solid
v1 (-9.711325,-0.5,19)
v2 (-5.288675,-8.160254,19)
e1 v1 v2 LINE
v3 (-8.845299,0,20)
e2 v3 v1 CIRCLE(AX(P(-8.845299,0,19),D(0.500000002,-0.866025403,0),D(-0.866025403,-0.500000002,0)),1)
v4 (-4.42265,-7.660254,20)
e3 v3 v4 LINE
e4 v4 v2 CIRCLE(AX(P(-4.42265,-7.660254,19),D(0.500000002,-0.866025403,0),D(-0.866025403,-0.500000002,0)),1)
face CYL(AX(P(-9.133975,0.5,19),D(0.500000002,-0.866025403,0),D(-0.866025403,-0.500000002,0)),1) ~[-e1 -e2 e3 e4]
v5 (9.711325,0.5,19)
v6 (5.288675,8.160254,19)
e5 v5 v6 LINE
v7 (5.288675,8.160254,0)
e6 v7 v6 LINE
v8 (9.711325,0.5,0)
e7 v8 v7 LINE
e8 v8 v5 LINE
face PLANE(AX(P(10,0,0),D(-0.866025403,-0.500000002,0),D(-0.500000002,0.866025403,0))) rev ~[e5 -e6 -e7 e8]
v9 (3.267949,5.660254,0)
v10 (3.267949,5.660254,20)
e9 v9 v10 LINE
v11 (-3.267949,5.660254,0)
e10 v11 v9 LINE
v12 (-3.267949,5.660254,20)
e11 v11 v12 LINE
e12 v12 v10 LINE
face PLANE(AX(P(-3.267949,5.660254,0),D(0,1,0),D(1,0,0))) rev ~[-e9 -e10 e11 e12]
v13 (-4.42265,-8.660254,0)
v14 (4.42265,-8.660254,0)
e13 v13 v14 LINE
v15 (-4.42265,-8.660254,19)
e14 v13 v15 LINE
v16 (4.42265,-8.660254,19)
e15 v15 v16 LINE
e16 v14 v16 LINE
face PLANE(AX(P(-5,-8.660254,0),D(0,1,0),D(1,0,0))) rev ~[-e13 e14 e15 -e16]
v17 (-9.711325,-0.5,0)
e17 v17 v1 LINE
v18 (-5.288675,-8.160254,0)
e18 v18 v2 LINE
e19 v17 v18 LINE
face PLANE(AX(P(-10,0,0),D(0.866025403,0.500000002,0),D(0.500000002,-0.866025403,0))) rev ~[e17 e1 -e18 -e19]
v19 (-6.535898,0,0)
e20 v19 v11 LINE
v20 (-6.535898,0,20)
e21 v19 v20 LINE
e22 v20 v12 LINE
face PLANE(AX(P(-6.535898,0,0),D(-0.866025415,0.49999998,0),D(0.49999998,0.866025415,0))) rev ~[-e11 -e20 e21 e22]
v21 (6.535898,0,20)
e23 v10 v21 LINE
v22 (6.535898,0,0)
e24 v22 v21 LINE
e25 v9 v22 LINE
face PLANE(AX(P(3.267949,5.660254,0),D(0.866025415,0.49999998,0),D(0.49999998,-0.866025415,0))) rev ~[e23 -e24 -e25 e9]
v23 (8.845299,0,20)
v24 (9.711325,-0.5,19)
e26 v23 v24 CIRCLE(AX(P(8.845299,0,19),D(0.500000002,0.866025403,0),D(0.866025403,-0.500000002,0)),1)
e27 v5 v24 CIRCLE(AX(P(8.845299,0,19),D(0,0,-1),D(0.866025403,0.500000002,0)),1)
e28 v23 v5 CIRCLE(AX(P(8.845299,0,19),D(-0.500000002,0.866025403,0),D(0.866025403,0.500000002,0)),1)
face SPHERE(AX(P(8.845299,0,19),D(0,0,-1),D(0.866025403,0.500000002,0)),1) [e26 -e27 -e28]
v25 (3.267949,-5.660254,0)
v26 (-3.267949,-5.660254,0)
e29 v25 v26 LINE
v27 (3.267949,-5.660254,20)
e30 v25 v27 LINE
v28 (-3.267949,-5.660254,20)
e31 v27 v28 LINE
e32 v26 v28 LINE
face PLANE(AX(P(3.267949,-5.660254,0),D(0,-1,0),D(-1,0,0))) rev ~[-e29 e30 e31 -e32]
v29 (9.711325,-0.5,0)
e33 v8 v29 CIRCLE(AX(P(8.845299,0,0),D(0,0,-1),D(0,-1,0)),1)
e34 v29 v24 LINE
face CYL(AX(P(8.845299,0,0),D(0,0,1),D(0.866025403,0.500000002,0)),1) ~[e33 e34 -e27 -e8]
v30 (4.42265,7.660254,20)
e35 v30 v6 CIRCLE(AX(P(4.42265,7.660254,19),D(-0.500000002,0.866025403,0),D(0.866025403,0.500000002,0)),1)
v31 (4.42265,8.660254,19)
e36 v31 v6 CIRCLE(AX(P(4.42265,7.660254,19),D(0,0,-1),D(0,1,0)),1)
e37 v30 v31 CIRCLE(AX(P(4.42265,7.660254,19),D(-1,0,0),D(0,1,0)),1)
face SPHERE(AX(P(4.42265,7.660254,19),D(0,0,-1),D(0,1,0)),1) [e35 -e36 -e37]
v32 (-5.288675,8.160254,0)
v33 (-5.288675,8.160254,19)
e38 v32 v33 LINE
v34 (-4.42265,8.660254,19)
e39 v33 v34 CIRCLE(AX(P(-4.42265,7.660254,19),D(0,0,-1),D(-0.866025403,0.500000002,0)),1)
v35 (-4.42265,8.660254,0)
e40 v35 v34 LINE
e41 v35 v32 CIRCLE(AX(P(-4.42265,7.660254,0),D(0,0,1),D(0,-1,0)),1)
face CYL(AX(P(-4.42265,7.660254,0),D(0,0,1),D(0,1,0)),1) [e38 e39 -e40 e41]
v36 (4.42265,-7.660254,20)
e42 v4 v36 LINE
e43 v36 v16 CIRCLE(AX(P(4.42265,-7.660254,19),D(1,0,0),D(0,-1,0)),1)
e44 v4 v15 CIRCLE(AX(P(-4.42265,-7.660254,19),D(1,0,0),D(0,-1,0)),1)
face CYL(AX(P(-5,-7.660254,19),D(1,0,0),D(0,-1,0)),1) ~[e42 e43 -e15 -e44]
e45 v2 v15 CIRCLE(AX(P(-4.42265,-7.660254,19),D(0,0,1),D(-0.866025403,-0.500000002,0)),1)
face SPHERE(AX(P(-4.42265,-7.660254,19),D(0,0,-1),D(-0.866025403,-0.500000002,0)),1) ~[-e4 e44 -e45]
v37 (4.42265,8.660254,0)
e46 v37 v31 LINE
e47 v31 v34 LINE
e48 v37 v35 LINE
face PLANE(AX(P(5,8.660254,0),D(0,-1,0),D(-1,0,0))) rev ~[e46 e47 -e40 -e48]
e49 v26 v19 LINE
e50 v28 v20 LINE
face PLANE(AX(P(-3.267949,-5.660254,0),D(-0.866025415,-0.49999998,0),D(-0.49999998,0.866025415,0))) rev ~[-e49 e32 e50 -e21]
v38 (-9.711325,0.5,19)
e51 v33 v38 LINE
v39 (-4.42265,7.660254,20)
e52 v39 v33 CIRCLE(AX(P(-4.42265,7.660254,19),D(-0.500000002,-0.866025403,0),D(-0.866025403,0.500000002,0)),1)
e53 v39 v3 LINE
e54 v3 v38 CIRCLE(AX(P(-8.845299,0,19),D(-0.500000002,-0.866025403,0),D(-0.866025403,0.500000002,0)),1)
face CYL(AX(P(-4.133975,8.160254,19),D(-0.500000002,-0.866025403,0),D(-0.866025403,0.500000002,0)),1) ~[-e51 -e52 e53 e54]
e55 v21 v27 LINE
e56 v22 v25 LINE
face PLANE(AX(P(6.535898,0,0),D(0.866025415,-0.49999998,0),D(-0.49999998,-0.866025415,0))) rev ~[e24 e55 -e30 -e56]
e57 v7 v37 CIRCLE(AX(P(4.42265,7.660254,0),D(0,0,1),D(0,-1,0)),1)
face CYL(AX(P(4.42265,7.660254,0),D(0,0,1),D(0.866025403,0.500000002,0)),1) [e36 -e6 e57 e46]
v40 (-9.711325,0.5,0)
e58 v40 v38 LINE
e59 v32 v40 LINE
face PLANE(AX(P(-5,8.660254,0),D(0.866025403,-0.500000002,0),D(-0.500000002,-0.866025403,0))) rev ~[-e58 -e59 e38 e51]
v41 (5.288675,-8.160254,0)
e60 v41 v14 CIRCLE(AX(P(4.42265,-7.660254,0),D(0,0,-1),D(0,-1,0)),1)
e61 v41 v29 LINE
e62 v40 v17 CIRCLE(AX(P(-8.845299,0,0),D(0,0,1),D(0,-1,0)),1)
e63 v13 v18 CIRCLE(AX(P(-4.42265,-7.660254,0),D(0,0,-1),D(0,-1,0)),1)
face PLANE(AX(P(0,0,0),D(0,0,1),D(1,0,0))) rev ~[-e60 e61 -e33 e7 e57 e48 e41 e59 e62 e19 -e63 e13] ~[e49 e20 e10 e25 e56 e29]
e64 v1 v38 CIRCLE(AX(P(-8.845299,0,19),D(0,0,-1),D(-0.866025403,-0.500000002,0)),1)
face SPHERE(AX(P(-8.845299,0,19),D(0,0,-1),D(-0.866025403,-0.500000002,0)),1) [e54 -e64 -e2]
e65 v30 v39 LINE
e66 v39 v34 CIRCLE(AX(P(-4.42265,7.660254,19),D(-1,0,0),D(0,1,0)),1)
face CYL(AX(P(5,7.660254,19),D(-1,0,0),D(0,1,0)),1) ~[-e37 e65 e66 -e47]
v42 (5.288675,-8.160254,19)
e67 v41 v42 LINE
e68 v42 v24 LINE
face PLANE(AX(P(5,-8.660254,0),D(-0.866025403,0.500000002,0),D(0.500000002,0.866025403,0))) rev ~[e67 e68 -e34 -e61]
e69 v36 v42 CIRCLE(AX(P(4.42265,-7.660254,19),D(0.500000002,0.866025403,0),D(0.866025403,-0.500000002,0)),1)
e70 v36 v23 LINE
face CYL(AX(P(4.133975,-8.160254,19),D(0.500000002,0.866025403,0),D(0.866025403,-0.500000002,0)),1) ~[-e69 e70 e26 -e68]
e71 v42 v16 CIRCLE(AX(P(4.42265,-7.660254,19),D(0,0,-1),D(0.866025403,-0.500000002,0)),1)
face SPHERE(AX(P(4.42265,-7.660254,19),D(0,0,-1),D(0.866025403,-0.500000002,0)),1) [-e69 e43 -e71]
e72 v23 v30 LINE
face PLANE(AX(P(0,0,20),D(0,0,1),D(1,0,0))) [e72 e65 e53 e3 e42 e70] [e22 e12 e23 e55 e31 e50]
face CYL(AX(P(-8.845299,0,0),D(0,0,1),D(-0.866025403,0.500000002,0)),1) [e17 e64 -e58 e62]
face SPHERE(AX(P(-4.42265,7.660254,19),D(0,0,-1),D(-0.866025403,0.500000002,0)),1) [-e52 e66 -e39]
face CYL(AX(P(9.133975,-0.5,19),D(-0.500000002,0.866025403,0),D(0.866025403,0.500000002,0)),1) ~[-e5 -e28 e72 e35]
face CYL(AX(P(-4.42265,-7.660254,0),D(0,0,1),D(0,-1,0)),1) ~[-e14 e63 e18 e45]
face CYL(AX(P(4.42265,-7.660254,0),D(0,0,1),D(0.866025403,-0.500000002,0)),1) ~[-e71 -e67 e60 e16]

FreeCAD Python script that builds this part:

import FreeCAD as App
import Part
import Sketcher
Q = App.Units.Quantity


def edges_at(feature, points):
    """Names of the edges that pass closest to the given points."""
    edges = feature.Shape.Edges
    near = lambda p: min(range(len(edges)), key=lambda i: edges[i].distToShape(Part.Vertex(*p))[0])
    return sorted({f"Edge{near(p) + 1}" for p in points})

doc = App.newDocument("Part")
body = doc.addObject("PartDesign::Body", "Body")

# Sketch on XY plane
sketch1 = body.newObject("Sketcher::SketchObject", "Sketch")
sketch1.AttachmentSupport = (doc.getObject("XY_Plane"), [""])
sketch1.MapMode = "FlatFace"
sketch1.addGeometry([
    Part.LineSegment(App.Vector(10, 0, 0), App.Vector(5, 8.660254, 0)),  # 0
    Part.LineSegment(App.Vector(5, 8.660254, 0), App.Vector(-5, 8.660254, 0)),  # 1
    Part.LineSegment(App.Vector(-5, 8.660254, 0), App.Vector(-10, 0, 0)),  # 2
    Part.LineSegment(App.Vector(-10, 0, 0), App.Vector(-5, -8.660254, 0)),  # 3
    Part.LineSegment(App.Vector(-5, -8.660254, 0), App.Vector(5, -8.660254, 0)),  # 4
    Part.LineSegment(App.Vector(5, -8.660254, 0), App.Vector(10, 0, 0)),  # 5
    Part.LineSegment(App.Vector(6.535898, 0, 0), App.Vector(3.267949, -5.660254, 0)),  # 6
    Part.LineSegment(App.Vector(3.267949, -5.660254, 0), App.Vector(-3.267949, -5.660254, 0)),  # 7
    Part.LineSegment(App.Vector(-3.267949, -5.660254, 0), App.Vector(-6.535898, 0, 0)),  # 8
    Part.LineSegment(App.Vector(-6.535898, 0, 0), App.Vector(-3.267949, 5.660254, 0)),  # 9
    Part.LineSegment(App.Vector(-3.267949, 5.660254, 0), App.Vector(3.267949, 5.660254, 0)),  # 10
    Part.LineSegment(App.Vector(3.267949, 5.660254, 0), App.Vector(6.535898, 0, 0)),  # 11
], False)
sketch1.addConstraint([
    Sketcher.Constraint("Coincident", 0, 2, 1, 1),
    Sketcher.Constraint("Coincident", 1, 2, 2, 1),
    Sketcher.Constraint("Coincident", 2, 2, 3, 1),
    Sketcher.Constraint("Coincident", 3, 2, 4, 1),
    Sketcher.Constraint("Coincident", 4, 2, 5, 1),
    Sketcher.Constraint("Coincident", 5, 2, 0, 1),
    Sketcher.Constraint("Coincident", 6, 2, 7, 1),
    Sketcher.Constraint("Coincident", 7, 2, 8, 1),
    Sketcher.Constraint("Coincident", 8, 2, 9, 1),
    Sketcher.Constraint("Coincident", 9, 2, 10, 1),
    Sketcher.Constraint("Coincident", 10, 2, 11, 1),
    Sketcher.Constraint("Coincident", 11, 2, 6, 1),
    Sketcher.Constraint("Horizontal", 1),
    Sketcher.Constraint("Horizontal", 4),
    Sketcher.Constraint("Horizontal", 7),
    Sketcher.Constraint("Horizontal", 10),
    Sketcher.Constraint("Symmetric", 0, 2, 3, 2, -1, 1),
    Sketcher.Constraint("Symmetric", 2, 2, 5, 2, -1, 1),
    Sketcher.Constraint("Symmetric", 6, 2, 9, 2, -1, 1),
    Sketcher.Constraint("Symmetric", 8, 2, 11, 2, -1, 1),
    Sketcher.Constraint("PointOnObject", 2, 2, -1),
    Sketcher.Constraint("PointOnObject", 8, 2, -1),
    Sketcher.Constraint("Parallel", 2, 5),
    Sketcher.Constraint("Parallel", 5, 6),
    Sketcher.Constraint("Parallel", 3, 8),
    Sketcher.Constraint("Parallel", 8, 11),
    Sketcher.Constraint("Vertical", 1, 2, 3, 2),
    Sketcher.Constraint("DistanceX", 1, 2, 1, 1, Q("10 mm")),
    Sketcher.Constraint("Angle", 0, Q("120 deg")),
    Sketcher.Constraint("Distance", 0, Q("10 mm")),
    Sketcher.Constraint("DistanceY", 4, 2, 6, 2, Q("3 mm")),
    Sketcher.Constraint("DistanceX", 7, 2, 7, 1, Q("6.535898 mm")),
])
pad1 = body.newObject("PartDesign::Pad", "Pad")
pad1.Profile = sketch1
pad1.Length = 20
doc.recompute()

fillet = body.newObject("PartDesign::Fillet", "Fillet")
fillet.Base = (pad1, edges_at(pad1, [
    (-7.5, -4.33, 20),
    (-7.5, 4.33, 20),
    (0, 8.66, 20),
    (7.5, 4.33, 20),
    (7.5, -4.33, 20),
    (0, -8.66, 20),
    (-5, -8.66, 10),
    (10, 0, 10),
    (5, -8.66, 10),
    (5, 8.66, 10),
    (-5, 8.66, 10),
    (-10, 0, 10),
]))
fillet.Radius = 1

doc.recompute()
